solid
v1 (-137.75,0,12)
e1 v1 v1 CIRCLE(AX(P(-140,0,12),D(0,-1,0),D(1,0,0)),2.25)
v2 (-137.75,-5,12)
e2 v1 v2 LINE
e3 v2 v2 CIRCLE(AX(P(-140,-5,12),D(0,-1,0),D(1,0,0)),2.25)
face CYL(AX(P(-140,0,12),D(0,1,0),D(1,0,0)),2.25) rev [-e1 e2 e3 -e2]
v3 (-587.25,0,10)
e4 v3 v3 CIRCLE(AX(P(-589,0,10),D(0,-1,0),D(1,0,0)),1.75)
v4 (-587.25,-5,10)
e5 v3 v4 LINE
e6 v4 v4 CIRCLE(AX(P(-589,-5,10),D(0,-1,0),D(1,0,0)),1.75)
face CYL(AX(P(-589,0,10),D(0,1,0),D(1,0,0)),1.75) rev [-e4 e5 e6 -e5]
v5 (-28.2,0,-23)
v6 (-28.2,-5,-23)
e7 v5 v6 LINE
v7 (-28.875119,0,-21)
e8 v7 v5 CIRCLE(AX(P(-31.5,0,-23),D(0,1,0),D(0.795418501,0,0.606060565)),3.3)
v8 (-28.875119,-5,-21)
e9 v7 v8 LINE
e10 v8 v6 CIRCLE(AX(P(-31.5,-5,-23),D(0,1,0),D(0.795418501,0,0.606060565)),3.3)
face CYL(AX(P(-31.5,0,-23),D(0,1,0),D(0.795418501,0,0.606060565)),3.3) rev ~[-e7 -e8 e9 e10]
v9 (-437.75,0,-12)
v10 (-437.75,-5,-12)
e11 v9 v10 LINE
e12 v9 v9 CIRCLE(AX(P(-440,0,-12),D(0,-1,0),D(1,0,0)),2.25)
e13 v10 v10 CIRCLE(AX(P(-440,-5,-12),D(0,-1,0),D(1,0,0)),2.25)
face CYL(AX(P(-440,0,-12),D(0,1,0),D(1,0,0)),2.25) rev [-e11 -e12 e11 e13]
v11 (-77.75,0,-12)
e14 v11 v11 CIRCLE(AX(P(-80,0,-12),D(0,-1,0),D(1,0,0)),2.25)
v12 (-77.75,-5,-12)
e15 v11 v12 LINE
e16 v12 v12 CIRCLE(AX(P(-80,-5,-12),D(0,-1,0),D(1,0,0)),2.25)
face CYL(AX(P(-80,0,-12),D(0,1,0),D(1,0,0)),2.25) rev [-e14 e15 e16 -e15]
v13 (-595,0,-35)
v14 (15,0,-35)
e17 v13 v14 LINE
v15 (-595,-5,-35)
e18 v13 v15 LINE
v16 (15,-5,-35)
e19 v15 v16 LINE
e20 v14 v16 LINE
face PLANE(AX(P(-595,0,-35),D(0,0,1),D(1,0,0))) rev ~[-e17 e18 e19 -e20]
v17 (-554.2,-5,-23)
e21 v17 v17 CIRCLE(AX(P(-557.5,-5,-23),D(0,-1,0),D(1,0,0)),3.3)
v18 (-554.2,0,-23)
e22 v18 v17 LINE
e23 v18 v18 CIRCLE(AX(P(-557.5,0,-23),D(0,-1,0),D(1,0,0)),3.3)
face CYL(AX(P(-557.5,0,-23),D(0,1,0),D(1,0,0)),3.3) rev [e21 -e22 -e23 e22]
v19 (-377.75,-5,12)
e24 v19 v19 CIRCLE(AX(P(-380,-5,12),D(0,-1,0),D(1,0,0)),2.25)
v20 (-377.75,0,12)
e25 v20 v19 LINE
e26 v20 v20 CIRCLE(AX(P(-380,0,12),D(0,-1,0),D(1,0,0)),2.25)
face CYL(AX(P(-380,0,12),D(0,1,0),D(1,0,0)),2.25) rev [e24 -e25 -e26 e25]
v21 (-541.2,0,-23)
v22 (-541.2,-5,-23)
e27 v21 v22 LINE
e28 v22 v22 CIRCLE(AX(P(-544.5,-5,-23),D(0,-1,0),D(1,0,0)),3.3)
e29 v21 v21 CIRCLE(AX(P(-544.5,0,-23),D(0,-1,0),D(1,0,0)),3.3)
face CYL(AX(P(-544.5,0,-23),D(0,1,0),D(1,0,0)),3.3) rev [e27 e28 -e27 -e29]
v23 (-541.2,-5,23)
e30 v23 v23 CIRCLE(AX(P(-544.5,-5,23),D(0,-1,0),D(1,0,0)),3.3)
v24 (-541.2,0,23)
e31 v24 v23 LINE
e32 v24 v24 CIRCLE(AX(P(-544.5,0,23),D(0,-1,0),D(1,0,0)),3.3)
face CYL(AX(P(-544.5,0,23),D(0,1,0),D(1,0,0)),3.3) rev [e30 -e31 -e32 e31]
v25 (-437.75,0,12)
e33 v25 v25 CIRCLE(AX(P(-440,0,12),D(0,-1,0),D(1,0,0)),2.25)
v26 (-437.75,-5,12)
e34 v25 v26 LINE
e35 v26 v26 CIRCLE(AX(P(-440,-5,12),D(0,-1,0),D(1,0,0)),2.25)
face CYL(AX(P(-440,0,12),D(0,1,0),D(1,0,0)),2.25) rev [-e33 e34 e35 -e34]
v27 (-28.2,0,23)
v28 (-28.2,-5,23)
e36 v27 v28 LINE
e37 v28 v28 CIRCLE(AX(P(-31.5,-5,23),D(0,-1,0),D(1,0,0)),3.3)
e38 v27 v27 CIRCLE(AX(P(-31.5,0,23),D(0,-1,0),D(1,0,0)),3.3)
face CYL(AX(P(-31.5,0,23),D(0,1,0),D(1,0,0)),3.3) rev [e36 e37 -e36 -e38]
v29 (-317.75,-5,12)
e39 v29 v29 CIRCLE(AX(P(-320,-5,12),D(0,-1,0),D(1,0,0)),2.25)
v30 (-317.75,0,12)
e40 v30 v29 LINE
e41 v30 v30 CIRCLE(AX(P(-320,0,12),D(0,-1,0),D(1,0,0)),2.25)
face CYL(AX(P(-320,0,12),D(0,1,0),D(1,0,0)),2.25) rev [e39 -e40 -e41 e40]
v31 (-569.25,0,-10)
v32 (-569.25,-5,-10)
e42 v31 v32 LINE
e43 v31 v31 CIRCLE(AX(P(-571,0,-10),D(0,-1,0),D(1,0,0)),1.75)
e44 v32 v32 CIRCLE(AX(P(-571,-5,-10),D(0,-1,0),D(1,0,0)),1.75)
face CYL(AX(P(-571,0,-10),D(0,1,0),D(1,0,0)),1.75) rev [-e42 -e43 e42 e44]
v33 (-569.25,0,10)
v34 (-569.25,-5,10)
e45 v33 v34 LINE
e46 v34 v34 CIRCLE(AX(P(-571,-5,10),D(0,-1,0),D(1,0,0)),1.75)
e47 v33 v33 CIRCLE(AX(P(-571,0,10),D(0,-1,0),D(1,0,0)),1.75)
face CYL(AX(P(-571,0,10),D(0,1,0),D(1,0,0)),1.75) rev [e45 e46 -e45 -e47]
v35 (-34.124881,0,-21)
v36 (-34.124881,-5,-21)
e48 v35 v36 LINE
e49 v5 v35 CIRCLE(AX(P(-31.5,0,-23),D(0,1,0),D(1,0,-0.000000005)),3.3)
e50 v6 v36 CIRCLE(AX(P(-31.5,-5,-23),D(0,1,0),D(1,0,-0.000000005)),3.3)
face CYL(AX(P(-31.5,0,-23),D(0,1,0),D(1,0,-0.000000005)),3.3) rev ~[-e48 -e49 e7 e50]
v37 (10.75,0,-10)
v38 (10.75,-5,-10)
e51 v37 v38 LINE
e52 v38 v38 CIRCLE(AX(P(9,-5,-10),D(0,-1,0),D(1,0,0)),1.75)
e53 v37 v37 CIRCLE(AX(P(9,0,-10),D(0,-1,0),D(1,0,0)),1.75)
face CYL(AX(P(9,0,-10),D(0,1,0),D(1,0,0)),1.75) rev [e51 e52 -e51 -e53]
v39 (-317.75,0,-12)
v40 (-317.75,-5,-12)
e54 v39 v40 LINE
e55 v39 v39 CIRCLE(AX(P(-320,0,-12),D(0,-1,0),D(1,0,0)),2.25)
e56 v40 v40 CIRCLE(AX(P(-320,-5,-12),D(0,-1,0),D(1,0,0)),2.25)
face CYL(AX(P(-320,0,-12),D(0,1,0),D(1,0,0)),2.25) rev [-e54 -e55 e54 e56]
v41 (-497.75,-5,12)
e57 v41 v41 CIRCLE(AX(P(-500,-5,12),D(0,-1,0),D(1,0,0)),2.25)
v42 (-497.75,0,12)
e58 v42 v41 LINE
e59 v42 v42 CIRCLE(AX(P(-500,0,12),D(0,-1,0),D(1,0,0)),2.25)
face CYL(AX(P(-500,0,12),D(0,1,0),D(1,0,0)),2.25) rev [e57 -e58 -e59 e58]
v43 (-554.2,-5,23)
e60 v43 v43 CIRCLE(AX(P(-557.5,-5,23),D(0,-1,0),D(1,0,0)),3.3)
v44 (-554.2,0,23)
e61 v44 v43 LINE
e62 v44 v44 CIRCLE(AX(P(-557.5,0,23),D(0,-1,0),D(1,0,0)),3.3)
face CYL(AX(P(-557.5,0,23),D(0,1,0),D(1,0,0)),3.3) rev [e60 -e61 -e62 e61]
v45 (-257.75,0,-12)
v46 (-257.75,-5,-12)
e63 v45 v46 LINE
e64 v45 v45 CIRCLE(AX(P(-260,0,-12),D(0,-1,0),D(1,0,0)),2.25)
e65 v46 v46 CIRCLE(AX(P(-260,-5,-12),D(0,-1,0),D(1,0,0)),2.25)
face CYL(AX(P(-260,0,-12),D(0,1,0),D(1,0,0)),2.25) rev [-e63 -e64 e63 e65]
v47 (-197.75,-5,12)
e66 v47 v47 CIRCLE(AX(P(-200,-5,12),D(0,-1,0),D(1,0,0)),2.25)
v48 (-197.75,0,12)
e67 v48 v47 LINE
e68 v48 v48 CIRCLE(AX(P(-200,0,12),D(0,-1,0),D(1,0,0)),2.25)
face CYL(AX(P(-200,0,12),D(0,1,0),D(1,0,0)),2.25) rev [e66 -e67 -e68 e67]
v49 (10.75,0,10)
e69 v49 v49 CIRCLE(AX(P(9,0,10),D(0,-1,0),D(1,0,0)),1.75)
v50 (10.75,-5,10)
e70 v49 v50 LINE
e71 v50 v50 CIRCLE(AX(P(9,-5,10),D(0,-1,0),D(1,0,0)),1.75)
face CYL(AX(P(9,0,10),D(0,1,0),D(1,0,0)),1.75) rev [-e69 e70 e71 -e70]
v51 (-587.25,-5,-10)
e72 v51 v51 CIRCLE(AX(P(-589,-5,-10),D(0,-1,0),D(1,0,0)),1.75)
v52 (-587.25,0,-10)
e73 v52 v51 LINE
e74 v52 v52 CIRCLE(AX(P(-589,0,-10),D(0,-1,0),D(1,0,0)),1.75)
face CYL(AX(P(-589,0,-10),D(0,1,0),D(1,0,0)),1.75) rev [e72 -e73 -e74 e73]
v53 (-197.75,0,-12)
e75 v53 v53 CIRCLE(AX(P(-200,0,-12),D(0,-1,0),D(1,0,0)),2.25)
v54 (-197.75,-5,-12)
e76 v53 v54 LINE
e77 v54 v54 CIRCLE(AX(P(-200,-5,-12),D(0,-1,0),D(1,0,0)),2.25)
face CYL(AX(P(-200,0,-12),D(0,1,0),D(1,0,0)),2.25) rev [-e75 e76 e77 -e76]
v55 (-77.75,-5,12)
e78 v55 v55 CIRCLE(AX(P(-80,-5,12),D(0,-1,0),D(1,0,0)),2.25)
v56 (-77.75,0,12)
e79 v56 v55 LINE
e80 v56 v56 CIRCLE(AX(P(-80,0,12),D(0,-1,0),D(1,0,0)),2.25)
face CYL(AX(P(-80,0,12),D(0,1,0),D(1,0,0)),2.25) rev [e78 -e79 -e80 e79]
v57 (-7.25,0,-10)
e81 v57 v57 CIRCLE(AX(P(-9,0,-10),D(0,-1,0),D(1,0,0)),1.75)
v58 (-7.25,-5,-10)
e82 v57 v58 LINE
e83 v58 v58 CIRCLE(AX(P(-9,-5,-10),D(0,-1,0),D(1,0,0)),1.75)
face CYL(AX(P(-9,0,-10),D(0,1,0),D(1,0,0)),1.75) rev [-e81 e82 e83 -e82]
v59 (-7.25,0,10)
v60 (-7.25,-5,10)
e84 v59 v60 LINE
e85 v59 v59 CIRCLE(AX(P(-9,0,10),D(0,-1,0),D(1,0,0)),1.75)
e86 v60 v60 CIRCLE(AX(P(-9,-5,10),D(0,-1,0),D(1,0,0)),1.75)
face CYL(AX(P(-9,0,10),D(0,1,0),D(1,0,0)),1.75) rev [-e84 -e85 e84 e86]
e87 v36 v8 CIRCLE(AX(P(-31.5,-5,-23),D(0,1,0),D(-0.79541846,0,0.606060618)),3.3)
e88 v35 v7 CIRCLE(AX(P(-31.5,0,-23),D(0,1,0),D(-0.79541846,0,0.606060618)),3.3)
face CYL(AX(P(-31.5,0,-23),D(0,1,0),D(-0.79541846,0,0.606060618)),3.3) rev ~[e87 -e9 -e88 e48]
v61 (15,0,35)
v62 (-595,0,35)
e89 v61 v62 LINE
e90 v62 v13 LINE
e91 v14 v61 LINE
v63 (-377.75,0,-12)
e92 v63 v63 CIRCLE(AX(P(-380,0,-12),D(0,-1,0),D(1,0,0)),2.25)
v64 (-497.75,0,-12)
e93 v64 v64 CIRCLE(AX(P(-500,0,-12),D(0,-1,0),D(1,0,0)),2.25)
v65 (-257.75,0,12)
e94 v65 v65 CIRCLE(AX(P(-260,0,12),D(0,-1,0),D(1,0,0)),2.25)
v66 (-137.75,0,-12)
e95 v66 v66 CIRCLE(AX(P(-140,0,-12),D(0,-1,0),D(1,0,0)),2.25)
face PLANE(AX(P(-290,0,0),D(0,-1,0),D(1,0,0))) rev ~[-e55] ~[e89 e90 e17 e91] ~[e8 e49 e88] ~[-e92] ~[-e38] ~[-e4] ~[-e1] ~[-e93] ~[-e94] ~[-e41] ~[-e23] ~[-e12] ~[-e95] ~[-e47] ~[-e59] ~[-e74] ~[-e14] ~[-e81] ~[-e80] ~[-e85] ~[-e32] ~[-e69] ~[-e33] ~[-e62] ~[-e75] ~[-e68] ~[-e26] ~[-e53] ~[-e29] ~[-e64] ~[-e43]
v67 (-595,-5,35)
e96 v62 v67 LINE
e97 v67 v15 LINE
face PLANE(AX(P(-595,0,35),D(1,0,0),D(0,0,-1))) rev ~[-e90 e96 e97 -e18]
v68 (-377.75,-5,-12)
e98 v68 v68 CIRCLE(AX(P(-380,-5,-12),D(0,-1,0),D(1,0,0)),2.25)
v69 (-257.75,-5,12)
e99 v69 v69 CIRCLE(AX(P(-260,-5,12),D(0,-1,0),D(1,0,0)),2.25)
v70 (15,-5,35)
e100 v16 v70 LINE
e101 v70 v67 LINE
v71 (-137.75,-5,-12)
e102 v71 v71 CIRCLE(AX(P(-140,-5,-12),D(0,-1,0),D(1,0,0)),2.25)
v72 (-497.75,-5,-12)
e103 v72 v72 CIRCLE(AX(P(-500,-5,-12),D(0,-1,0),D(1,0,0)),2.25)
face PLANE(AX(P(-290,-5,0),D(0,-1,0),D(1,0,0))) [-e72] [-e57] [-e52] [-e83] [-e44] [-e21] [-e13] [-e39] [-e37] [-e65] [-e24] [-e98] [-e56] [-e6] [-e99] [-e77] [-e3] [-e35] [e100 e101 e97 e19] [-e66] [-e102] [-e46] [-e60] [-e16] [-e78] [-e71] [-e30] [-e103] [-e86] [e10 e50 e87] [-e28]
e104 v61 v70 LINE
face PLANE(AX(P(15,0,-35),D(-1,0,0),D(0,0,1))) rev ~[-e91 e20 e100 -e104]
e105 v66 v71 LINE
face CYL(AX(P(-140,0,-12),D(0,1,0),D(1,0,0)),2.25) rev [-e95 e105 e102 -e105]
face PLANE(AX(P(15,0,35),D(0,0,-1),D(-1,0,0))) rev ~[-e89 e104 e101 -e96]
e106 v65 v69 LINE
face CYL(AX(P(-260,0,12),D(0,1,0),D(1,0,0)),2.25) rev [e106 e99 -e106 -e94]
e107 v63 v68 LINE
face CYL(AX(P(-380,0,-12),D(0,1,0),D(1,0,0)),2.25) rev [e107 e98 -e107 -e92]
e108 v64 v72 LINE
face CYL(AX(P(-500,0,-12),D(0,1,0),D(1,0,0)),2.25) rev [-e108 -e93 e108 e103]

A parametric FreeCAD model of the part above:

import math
import FreeCAD as App
import Part
import Sketcher

V = App.Vector


def add_polygon(sketch, points):
    """Adds a closed chain of lines whose ends are joined by coincident constraints."""
    first, n = sketch.GeometryCount, len(points)
    for a, b in zip(points, points[1:] + points[:1]):
        sketch.addGeometry(Part.LineSegment(App.Vector(*a, 0), App.Vector(*b, 0)), False)
    for i in range(n):
        sketch.addConstraint(Sketcher.Constraint("Coincident", first + i, 2, first + (i + 1) % n, 1))

doc = App.newDocument("Part")
body = doc.addObject("PartDesign::Body", "Body")

# Sketch on XZ plane
sketch1 = body.newObject("Sketcher::SketchObject", "Sketch")
sketch1.AttachmentSupport = (doc.getObject("XZ_Plane"), [""])
sketch1.MapMode = "FlatFace"
add_polygon(sketch1, [(15, -35), (15, 35), (-595, 35), (-595, -35)])  # lines 0-3
sketch1.addGeometry(Part.Circle(V(-557.5, -23, 0), V(0, 0, 1), 3.3), False)  # 4
sketch1.addGeometry(Part.Circle(V(-544.5, -23, 0), V(0, 0, 1), 3.3), False)  # 5
sketch1.addGeometry(Part.Circle(V(-589, -10, 0), V(0, 0, 1), 1.75), False)  # 6
sketch1.addGeometry(Part.Circle(V(-571, -10, 0), V(0, 0, 1), 1.75), False)  # 7
sketch1.addGeometry(Part.Circle(V(-500, -12, 0), V(0, 0, 1), 2.25), False)  # 8
sketch1.addGeometry(Part.Circle(V(-440, -12, 0), V(0, 0, 1), 2.25), False)  # 9
sketch1.addGeometry(Part.Circle(V(-380, -12, 0), V(0, 0, 1), 2.25), False)  # 10
sketch1.addGeometry(Part.Circle(V(-320, -12, 0), V(0, 0, 1), 2.25), False)  # 11
sketch1.addGeometry(Part.ArcOfCircle(Part.Circle(V(-31.5, -23, 0), V(0, 0, 1), 3.3), math.radians(0), math.radians(37.305198)), False)  # 12
sketch1.addGeometry(Part.ArcOfCircle(Part.Circle(V(-31.5, -23, 0), V(0, 0, 1), 3.3), math.radians(142.6948), math.radians(360)), False)  # 13
sketch1.addGeometry(Part.ArcOfCircle(Part.Circle(V(-31.5, -23, 0), V(0, 0, 1), 3.3), math.radians(37.305202), math.radians(142.694798)), False)  # 14
sketch1.addGeometry(Part.Circle(V(-260, -12, 0), V(0, 0, 1), 2.25), False)  # 15
sketch1.addGeometry(Part.Circle(V(-200, -12, 0), V(0, 0, 1), 2.25), False)  # 16
sketch1.addGeometry(Part.Circle(V(-140, -12, 0), V(0, 0, 1), 2.25), False)  # 17
sketch1.addGeometry(Part.Circle(V(-80, -12, 0), V(0, 0, 1), 2.25), False)  # 18
sketch1.addGeometry(Part.Circle(V(-9, -10, 0), V(0, 0, 1), 1.75), False)  # 19
sketch1.addGeometry(Part.Circle(V(9, -10, 0), V(0, 0, 1), 1.75), False)  # 20
sketch1.addGeometry(Part.Circle(V(-589, 10, 0), V(0, 0, 1), 1.75), False)  # 21
sketch1.addGeometry(Part.Circle(V(-571, 10, 0), V(0, 0, 1), 1.75), False)  # 22
sketch1.addGeometry(Part.Circle(V(-500, 12, 0), V(0, 0, 1), 2.25), False)  # 23
sketch1.addGeometry(Part.Circle(V(-440, 12, 0), V(0, 0, 1), 2.25), False)  # 24
sketch1.addGeometry(Part.Circle(V(-380, 12, 0), V(0, 0, 1), 2.25), False)  # 25
sketch1.addGeometry(Part.Circle(V(-320, 12, 0), V(0, 0, 1), 2.25), False)  # 26
sketch1.addGeometry(Part.Circle(V(-557.5, 23, 0), V(0, 0, 1), 3.3), False)  # 27
sketch1.addGeometry(Part.Circle(V(-544.5, 23, 0), V(0, 0, 1), 3.3), False)  # 28
sketch1.addGeometry(Part.Circle(V(-260, 12, 0), V(0, 0, 1), 2.25), False)  # 29
sketch1.addGeometry(Part.Circle(V(-200, 12, 0), V(0, 0, 1), 2.25), False)  # 30
sketch1.addGeometry(Part.Circle(V(-140, 12, 0), V(0, 0, 1), 2.25), False)  # 31
sketch1.addGeometry(Part.Circle(V(-80, 12, 0), V(0, 0, 1), 2.25), False)  # 32
sketch1.addGeometry(Part.Circle(V(-9, 10, 0), V(0, 0, 1), 1.75), False)  # 33
sketch1.addGeometry(Part.Circle(V(9, 10, 0), V(0, 0, 1), 1.75), False)  # 34
sketch1.addGeometry(Part.Circle(V(-31.5, 23, 0), V(0, 0, 1), 3.3), False)  # 35
sketch1.addConstraint([
    Sketcher.Constraint("Tangent", 12, 1, 13, 2),
    Sketcher.Constraint("Tangent", 13, 1, 14, 2),
    Sketcher.Constraint("Tangent", 14, 1, 12, 2),
    Sketcher.Constraint("Vertical", 0),
    Sketcher.Constraint("Horizontal", 1),
    Sketcher.Constraint("Vertical", 2),
    Sketcher.Constraint("Horizontal", 3),
    Sketcher.Constraint("Equal", 4, 5),
    Sketcher.Constraint("Equal", 6, 7),
    Sketcher.Constraint("Equal", 8, 9),
    Sketcher.Constraint("Equal", 9, 10),
    Sketcher.Constraint("Equal", 10, 11),
    Sketcher.Constraint("Equal", 5, 12),
    Sketcher.Constraint("Equal", 11, 15),
    Sketcher.Constraint("Equal", 15, 16),
    Sketcher.Constraint("Equal", 16, 17),
    Sketcher.Constraint("Equal", 17, 18),
    Sketcher.Constraint("Equal", 7, 19),
    Sketcher.Constraint("Equal", 19, 20),
    Sketcher.Constraint("Equal", 20, 21),
    Sketcher.Constraint("Equal", 21, 22),
    Sketcher.Constraint("Equal", 18, 23),
    Sketcher.Constraint("Equal", 23, 24),
    Sketcher.Constraint("Equal", 24, 25),
    Sketcher.Constraint("Equal", 25, 26),
    Sketcher.Constraint("Equal", 14, 27),
    Sketcher.Constraint("Equal", 27, 28),
    Sketcher.Constraint("Equal", 26, 29),
    Sketcher.Constraint("Equal", 29, 30),
    Sketcher.Constraint("Equal", 30, 31),
    Sketcher.Constraint("Equal", 31, 32),
    Sketcher.Constraint("Equal", 22, 33),
    Sketcher.Constraint("Equal", 33, 34),
    Sketcher.Constraint("Equal", 28, 35),
    Sketcher.Constraint("Symmetric", 20, 3, 33, 3, -1, 1),
    Sketcher.Constraint("Symmetric", 19, 3, 34, 3, -1, 1),
    Sketcher.Constraint("Symmetric", 19, 3, 20, 3, -2),
    Sketcher.Constraint("Symmetric", 6, 3, 21, 3, -1),
    Sketcher.Constraint("Symmetric", 7, 3, 22, 3, -1),
    Sketcher.Constraint("Symmetric", 8, 3, 23, 3, -1),
    Sketcher.Constraint("Symmetric", 9, 3, 24, 3, -1),
    Sketcher.Constraint("Symmetric", 10, 3, 25, 3, -1),
    Sketcher.Constraint("Symmetric", 11, 3, 26, 3, -1),
    Sketcher.Constraint("Symmetric", 4, 3, 27, 3, -1),
    Sketcher.Constraint("Symmetric", 5, 3, 28, 3, -1),
    Sketcher.Constraint("Symmetric", 15, 3, 29, 3, -1),
    Sketcher.Constraint("Symmetric", 16, 3, 30, 3, -1),
    Sketcher.Constraint("Symmetric", 17, 3, 31, 3, -1),
    Sketcher.Constraint("Symmetric", 18, 3, 32, 3, -1),
    Sketcher.Constraint("Symmetric", 12, 3, 35, 3, -1),
    Sketcher.Constraint("Horizontal", 4, 3, 5, 3),
    Sketcher.Constraint("Horizontal", 6, 3, 7, 3),
    Sketcher.Constraint("Horizontal", 8, 3, 9, 3),
    Sketcher.Constraint("Horizontal", 9, 3, 10, 3),
    Sketcher.Constraint("Horizontal", 10, 3, 11, 3),
    Sketcher.Constraint("Horizontal", 5, 3, 12, 3),
    Sketcher.Constraint("Horizontal", 11, 3, 15, 3),
    Sketcher.Constraint("Horizontal", 15, 3, 16, 3),
    Sketcher.Constraint("Horizontal", 16, 3, 17, 3),
    Sketcher.Constraint("Horizontal", 17, 3, 18, 3),
    Sketcher.Constraint("Horizontal", 7, 3, 19, 3),
    Sketcher.Constraint("Horizontal", 14, 3, 12, 1),
    Sketcher.Constraint("Horizontal", 13, 1, 14, 1),
    Sketcher.Constraint("Diameter", 4, 6.6),
    Sketcher.Constraint("Diameter", 6, 3.5),
    Sketcher.Constraint("Diameter", 8, 4.5),
    Sketcher.Constraint("DistanceX", 1, 2, 1, 1, 610.0),
    Sketcher.Constraint("DistanceY", 0, 1, 0, 2, 70.0),
    Sketcher.Constraint("DistanceY", 4, 3, -1, 1, 23.0),
    Sketcher.Constraint("DistanceX", 6, 3, -1, 1, 589.0),
    Sketcher.Constraint("DistanceY", 6, 3, -1, 1, 10.0),
    Sketcher.Constraint("DistanceX", 7, 3, -1, 1, 571.0),
    Sketcher.Constraint("DistanceX", 8, 3, -1, 1, 500.0),
    Sketcher.Constraint("DistanceY", 8, 3, -1, 1, 12.0),
    Sketcher.Constraint("DistanceX", 9, 3, -1, 1, 440.0),
    Sketcher.Constraint("DistanceX", 10, 3, -1, 1, 380.0),
    Sketcher.Constraint("DistanceX", 11, 3, -1, 1, 320.0),
    Sketcher.Constraint("DistanceX", 15, 3, -1, 1, 260.0),
    Sketcher.Constraint("DistanceX", 16, 3, -1, 1, 200.0),
    Sketcher.Constraint("DistanceX", 17, 3, -1, 1, 140.0),
    Sketcher.Constraint("DistanceX", 18, 3, -1, 1, 80.0),
    Sketcher.Constraint("DistanceX", 19, 3, -1, 1, 9.0),
    Sketcher.Constraint("DistanceX", -1, 1, 0, 2, 15.0),
    Sketcher.Constraint("DistanceY", -1, 1, 0, 2, 35.0),
    Sketcher.Constraint("DistanceY", 13, 1, -1, 1, 21.0),
    Sketcher.Constraint("DistanceX", 4, 3, 5, 3, 13.0),
    Sketcher.Constraint("DistanceX", 5, 3, 12, 3, 513.0),
    Sketcher.Constraint("DistanceX", 4, 3, -1, 1, 557.5),
])
pad1 = body.newObject("PartDesign::Pad", "Pad")
pad1.Profile = sketch1
pad1.Length = 5

doc.recompute()
